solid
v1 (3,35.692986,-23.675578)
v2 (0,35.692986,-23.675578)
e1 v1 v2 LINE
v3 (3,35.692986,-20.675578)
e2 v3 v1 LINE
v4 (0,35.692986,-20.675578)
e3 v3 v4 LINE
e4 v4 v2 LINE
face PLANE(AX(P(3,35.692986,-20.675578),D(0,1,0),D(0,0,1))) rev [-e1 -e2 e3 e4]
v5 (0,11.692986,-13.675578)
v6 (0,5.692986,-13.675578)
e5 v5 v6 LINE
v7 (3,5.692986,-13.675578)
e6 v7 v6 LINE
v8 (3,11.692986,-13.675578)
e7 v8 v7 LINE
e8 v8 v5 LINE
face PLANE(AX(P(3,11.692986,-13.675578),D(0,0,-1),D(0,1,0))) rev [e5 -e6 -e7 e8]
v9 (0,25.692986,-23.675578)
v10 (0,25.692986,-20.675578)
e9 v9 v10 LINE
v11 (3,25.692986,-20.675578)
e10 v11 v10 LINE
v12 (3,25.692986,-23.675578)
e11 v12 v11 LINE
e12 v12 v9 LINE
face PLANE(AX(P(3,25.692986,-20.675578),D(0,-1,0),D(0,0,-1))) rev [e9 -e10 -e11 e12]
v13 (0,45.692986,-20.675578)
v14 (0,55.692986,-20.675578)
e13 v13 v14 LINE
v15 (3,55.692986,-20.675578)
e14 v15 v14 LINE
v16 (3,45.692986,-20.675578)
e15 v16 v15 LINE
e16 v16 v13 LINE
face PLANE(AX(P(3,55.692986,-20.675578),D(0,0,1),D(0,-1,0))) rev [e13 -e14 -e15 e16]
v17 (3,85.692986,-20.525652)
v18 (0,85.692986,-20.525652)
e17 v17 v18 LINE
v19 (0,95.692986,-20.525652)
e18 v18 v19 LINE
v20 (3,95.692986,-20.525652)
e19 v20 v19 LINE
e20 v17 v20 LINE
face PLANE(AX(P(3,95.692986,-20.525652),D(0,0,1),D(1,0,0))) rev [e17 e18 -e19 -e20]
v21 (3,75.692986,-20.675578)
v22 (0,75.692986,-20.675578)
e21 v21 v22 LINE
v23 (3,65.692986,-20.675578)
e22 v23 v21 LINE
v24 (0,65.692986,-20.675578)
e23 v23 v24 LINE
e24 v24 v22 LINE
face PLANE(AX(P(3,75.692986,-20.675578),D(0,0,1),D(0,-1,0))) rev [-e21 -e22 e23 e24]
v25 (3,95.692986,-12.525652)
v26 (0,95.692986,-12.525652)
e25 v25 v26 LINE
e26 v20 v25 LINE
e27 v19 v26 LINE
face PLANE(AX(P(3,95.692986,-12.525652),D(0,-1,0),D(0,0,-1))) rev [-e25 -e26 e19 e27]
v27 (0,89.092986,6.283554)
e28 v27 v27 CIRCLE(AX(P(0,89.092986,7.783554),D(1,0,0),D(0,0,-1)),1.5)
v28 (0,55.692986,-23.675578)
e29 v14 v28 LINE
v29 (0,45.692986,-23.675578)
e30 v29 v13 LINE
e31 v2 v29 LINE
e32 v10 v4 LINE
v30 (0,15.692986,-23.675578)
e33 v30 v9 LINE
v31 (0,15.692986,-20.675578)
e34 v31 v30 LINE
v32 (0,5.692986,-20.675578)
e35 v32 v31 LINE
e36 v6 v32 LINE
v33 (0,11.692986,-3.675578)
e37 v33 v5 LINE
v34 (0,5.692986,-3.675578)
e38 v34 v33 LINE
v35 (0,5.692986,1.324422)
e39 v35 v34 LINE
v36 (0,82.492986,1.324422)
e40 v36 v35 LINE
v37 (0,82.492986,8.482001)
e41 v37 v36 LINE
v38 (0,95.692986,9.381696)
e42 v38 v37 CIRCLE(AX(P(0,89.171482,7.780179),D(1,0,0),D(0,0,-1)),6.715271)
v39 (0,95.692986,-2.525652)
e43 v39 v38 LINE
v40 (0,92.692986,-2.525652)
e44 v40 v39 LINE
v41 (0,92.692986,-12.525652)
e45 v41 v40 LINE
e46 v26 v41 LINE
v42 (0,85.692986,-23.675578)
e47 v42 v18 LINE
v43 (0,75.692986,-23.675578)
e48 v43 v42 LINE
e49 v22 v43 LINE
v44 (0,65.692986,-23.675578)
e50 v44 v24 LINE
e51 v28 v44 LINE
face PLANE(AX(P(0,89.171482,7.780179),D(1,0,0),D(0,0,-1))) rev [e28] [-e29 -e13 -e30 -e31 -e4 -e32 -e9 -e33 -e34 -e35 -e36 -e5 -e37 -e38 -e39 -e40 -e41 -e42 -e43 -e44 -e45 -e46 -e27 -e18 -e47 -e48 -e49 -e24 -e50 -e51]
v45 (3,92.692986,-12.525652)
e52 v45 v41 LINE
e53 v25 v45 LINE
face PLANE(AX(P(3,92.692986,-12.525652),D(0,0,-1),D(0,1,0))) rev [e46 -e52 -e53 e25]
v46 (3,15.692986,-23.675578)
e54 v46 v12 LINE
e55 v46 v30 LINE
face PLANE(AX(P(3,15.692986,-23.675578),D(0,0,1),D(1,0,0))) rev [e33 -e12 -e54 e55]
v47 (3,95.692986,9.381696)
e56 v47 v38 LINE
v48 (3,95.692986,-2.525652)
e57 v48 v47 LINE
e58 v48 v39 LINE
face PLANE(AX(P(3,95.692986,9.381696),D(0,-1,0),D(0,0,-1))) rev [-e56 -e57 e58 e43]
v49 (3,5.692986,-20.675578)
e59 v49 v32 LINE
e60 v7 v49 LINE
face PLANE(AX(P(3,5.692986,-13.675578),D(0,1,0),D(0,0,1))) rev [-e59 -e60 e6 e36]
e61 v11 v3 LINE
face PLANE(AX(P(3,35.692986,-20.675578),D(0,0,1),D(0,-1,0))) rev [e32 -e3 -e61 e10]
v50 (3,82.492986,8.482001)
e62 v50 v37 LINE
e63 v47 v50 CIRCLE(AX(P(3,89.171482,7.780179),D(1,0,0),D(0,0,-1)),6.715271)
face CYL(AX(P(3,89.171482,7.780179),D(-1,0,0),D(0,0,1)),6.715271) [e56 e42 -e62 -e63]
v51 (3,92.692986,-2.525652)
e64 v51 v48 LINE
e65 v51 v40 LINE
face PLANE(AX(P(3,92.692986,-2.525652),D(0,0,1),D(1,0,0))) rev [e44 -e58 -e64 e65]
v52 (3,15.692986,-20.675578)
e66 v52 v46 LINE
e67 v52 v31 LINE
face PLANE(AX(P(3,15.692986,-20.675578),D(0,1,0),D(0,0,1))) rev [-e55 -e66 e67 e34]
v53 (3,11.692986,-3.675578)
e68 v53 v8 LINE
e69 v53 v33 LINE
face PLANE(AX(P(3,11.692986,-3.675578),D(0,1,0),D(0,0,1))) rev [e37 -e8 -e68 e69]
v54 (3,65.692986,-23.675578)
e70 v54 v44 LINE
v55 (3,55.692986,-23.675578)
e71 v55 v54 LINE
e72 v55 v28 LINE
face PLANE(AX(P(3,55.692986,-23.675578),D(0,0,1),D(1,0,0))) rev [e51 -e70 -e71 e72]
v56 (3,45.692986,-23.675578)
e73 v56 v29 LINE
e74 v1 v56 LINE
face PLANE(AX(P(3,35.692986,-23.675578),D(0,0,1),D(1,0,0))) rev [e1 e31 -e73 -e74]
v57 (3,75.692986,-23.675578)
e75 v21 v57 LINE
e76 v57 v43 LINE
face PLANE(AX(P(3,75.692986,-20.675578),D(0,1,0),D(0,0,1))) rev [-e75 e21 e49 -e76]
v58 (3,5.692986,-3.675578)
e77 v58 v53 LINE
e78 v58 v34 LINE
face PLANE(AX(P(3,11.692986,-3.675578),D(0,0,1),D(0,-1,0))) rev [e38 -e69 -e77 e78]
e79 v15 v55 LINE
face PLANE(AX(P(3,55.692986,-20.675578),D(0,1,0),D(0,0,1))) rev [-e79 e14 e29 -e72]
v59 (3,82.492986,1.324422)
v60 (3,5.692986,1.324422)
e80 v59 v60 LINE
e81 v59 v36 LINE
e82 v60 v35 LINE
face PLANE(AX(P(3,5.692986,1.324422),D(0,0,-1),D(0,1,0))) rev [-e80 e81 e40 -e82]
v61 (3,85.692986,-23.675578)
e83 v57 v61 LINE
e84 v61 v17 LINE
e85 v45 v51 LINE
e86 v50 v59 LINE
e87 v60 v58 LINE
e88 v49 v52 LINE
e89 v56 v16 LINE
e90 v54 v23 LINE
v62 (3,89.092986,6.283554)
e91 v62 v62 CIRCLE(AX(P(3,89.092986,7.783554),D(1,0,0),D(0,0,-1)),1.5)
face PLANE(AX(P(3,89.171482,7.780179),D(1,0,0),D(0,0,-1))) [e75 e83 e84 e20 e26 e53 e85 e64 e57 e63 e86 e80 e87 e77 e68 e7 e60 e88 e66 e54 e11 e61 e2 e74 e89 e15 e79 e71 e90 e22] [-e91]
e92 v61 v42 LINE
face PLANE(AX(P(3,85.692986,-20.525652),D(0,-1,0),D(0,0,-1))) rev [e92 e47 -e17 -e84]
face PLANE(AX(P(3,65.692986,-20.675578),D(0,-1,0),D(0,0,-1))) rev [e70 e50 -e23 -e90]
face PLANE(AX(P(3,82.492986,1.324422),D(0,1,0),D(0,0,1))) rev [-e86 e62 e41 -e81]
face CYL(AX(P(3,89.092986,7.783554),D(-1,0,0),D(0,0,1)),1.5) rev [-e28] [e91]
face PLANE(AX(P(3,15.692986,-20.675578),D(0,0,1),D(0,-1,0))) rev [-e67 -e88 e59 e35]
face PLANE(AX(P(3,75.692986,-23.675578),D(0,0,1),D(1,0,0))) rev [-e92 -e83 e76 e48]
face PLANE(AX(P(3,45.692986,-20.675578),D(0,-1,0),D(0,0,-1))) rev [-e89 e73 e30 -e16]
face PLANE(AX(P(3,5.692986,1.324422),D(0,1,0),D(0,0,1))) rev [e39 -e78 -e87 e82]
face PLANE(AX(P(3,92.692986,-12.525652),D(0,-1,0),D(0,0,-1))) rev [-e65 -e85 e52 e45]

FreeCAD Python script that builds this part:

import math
import FreeCAD as App
import Part
import Sketcher
from FreeCAD import Vector

doc = App.newDocument("Part")
body = doc.addObject("PartDesign::Body", "Body")

sketch1 = body.newObject("Sketcher::SketchObject", "Sketch")
sketch1.AttachmentSupport = (doc.getObject("YZ_Plane"), [""])
sketch1.MapMode = "FlatFace"
sketch1.addGeometry([
    Part.LineSegment(Vector(95.7, -2.5, 0), Vector(95.7, 9.4, 0)),
    Part.ArcOfCircle(Part.Circle(Vector(89.2, 7.8, 0), Vector(0, 0, 1), 6.7), math.radians(14), math.radians(174)),
    Part.LineSegment(Vector(82.5, 8.5, 0), Vector(82.5, 1.3, 0)),
    Part.LineSegment(Vector(82.5, 1.3, 0), Vector(5.7, 1.3, 0)),
    Part.LineSegment(Vector(5.7, 1.3, 0), Vector(5.7, -3.7, 0)),
    Part.LineSegment(Vector(5.7, -3.7, 0), Vector(11.7, -3.7, 0)),
    Part.LineSegment(Vector(11.7, -3.7, 0), Vector(11.7, -13.7, 0)),
    Part.LineSegment(Vector(11.7, -13.7, 0), Vector(5.7, -13.7, 0)),
    Part.LineSegment(Vector(5.7, -13.7, 0), Vector(5.7, -20.7, 0)),
    Part.LineSegment(Vector(5.7, -20.7, 0), Vector(15.7, -20.7, 0)),
    Part.LineSegment(Vector(15.7, -20.7, 0), Vector(15.7, -23.7, 0)),
    Part.LineSegment(Vector(15.7, -23.7, 0), Vector(25.7, -23.7, 0)),
    Part.LineSegment(Vector(25.7, -23.7, 0), Vector(25.7, -20.7, 0)),
    Part.LineSegment(Vector(25.7, -20.7, 0), Vector(35.7, -20.7, 0)),
    Part.LineSegment(Vector(35.7, -20.7, 0), Vector(35.7, -23.7, 0)),
    Part.LineSegment(Vector(35.7, -23.7, 0), Vector(45.7, -23.7, 0)),
    Part.LineSegment(Vector(45.7, -23.7, 0), Vector(45.7, -20.7, 0)),
    Part.LineSegment(Vector(45.7, -20.7, 0), Vector(55.7, -20.7, 0)),
    Part.LineSegment(Vector(55.7, -20.7, 0), Vector(55.7, -23.7, 0)),
    Part.LineSegment(Vector(55.7, -23.7, 0), Vector(65.7, -23.7, 0)),
    Part.LineSegment(Vector(65.7, -23.7, 0), Vector(65.7, -20.7, 0)),
    Part.LineSegment(Vector(65.7, -20.7, 0), Vector(75.7, -20.7, 0)),
    Part.LineSegment(Vector(75.7, -20.7, 0), Vector(75.7, -23.7, 0)),
    Part.LineSegment(Vector(75.7, -23.7, 0), Vector(85.7, -23.7, 0)),
    Part.LineSegment(Vector(85.7, -23.7, 0), Vector(85.7, -20.5, 0)),
    Part.LineSegment(Vector(85.7, -20.5, 0), Vector(95.7, -20.5, 0)),
    Part.LineSegment(Vector(95.7, -20.5, 0), Vector(95.7, -12.5, 0)),
    Part.LineSegment(Vector(95.7, -12.5, 0), Vector(92.7, -12.5, 0)),
    Part.LineSegment(Vector(92.7, -12.5, 0), Vector(92.7, -2.5, 0)),
    Part.LineSegment(Vector(92.7, -2.5, 0), Vector(95.7, -2.5, 0)),
    Part.Circle(Vector(89.1, 7.8, 0), Vector(0, 0, 1), 1.5),
], False)
sketch1.addConstraint([
    Sketcher.Constraint("Coincident", 0, 2, 1, 1),
    Sketcher.Constraint("Coincident", 1, 2, 2, 1),
    Sketcher.Constraint("Coincident", 2, 2, 3, 1),
    Sketcher.Constraint("Coincident", 3, 2, 4, 1),
    Sketcher.Constraint("Coincident", 4, 2, 5, 1),
    Sketcher.Constraint("Coincident", 5, 2, 6, 1),
    Sketcher.Constraint("Coincident", 6, 2, 7, 1),
    Sketcher.Constraint("Coincident", 7, 2, 8, 1),
    Sketcher.Constraint("Coincident", 8, 2, 9, 1),
    Sketcher.Constraint("Coincident", 9, 2, 10, 1),
    Sketcher.Constraint("Coincident", 10, 2, 11, 1),
    Sketcher.Constraint("Coincident", 11, 2, 12, 1),
    Sketcher.Constraint("Coincident", 12, 2, 13, 1),
    Sketcher.Constraint("Coincident", 13, 2, 14, 1),
    Sketcher.Constraint("Coincident", 14, 2, 15, 1),
    Sketcher.Constraint("Coincident", 15, 2, 16, 1),
    Sketcher.Constraint("Coincident", 16, 2, 17, 1),
    Sketcher.Constraint("Coincident", 17, 2, 18, 1),
    Sketcher.Constraint("Coincident", 18, 2, 19, 1),
    Sketcher.Constraint("Coincident", 19, 2, 20, 1),
    Sketcher.Constraint("Coincident", 20, 2, 21, 1),
    Sketcher.Constraint("Coincident", 21, 2, 22, 1),
    Sketcher.Constraint("Coincident", 22, 2, 23, 1),
    Sketcher.Constraint("Coincident", 23, 2, 24, 1),
    Sketcher.Constraint("Coincident", 24, 2, 25, 1),
    Sketcher.Constraint("Coincident", 25, 2, 26, 1),
    Sketcher.Constraint("Coincident", 26, 2, 27, 1),
    Sketcher.Constraint("Coincident", 27, 2, 28, 1),
    Sketcher.Constraint("Coincident", 28, 2, 29, 1),
    Sketcher.Constraint("Coincident", 29, 2, 0, 1),
    Sketcher.Constraint("Vertical", 0),
    Sketcher.Constraint("Vertical", 2),
    Sketcher.Constraint("Horizontal", 3),
    Sketcher.Constraint("Vertical", 4),
    Sketcher.Constraint("Horizontal", 5),
    Sketcher.Constraint("Vertical", 6),
    Sketcher.Constraint("Horizontal", 7),
    Sketcher.Constraint("Vertical", 8),
    Sketcher.Constraint("Horizontal", 9),
    Sketcher.Constraint("Vertical", 10),
    Sketcher.Constraint("Horizontal", 11),
    Sketcher.Constraint("Vertical", 12),
    Sketcher.Constraint("Horizontal", 13),
    Sketcher.Constraint("Vertical", 14),
    Sketcher.Constraint("Horizontal", 15),
    Sketcher.Constraint("Vertical", 16),
    Sketcher.Constraint("Horizontal", 17),
    Sketcher.Constraint("Vertical", 18),
    Sketcher.Constraint("Horizontal", 19),
    Sketcher.Constraint("Vertical", 20),
    Sketcher.Constraint("Horizontal", 21),
    Sketcher.Constraint("Vertical", 22),
    Sketcher.Constraint("Horizontal", 23),
    Sketcher.Constraint("Vertical", 24),
    Sketcher.Constraint("Horizontal", 25),
    Sketcher.Constraint("Vertical", 26),
    Sketcher.Constraint("Horizontal", 27),
    Sketcher.Constraint("Vertical", 28),
    Sketcher.Constraint("Horizontal", 29),
    Sketcher.Constraint("Horizontal", 9, 2, 12, 2),
    Sketcher.Constraint("Horizontal", 11, 2, 14, 2),
    Sketcher.Constraint("Horizontal", 13, 2, 16, 2),
    Sketcher.Constraint("Horizontal", 15, 2, 18, 2),
    Sketcher.Constraint("Horizontal", 17, 2, 20, 2),
    Sketcher.Constraint("Horizontal", 19, 2, 22, 2),
    Sketcher.Constraint("Vertical", 4, 2, 7, 2),
    Sketcher.Constraint("Vertical", 0, 2, 25, 2),
    Sketcher.Constraint("Equal", 9, 11),
    Sketcher.Constraint("Equal", 11, 13),
    Sketcher.Constraint("Equal", 13, 15),
    Sketcher.Constraint("Equal", 15, 17),
    Sketcher.Constraint("Equal", 17, 19),
    Sketcher.Constraint("Equal", 19, 21),
    Sketcher.Constraint("Equal", 21, 23),
    Sketcher.Constraint("Equal", 23, 25),
    Sketcher.Constraint("Equal", 25, 6),
    Sketcher.Constraint("Equal", 29, 10),
    Sketcher.Constraint("Equal", 6, 28),
    Sketcher.Constraint("Diameter", 30, 3.0),
    Sketcher.Constraint("DistanceX", 5, 1, 5, 2, 6.0),
    Sketcher.Constraint("DistanceX", 9, 1, 9, 2, 10.0),
    Sketcher.Constraint("DistanceX", 27, 2, 27, 1, 3.0),
    Sketcher.Constraint("DistanceY", 4, 2, 4, 1, 5.0),
    Sketcher.Constraint("DistanceY", 8, 2, 8, 1, 7.0),
    Sketcher.Constraint("DistanceY", 26, 1, 26, 2, 8.0),
    Sketcher.Constraint("DistanceX", 3, 2, 3, 1, 76.8),
    Sketcher.Constraint("DistanceX", 30, 3, 0, 2, 6.6),
    Sketcher.Constraint("Radius", 1, 6.715271),
    Sketcher.Constraint("DistanceY", -1, 1, 1, 2, 8.482001),
    Sketcher.Constraint("DistanceY", 0, 1, 0, 2, 11.907348),
    Sketcher.Constraint("DistanceY", 2, 2, 2, 1, 7.157579),
    Sketcher.Constraint("DistanceY", 24, 1, 24, 2, 3.149925),
    Sketcher.Constraint("DistanceY", 30, 3, 0, 2, 1.598142),
    Sketcher.Constraint("DistanceX", -1, 1, 1, 3, 89.171482),
])
pad1 = body.newObject("PartDesign::Pad", "Pad")
pad1.Profile = sketch1
pad1.Length = 3

doc.recompute()
